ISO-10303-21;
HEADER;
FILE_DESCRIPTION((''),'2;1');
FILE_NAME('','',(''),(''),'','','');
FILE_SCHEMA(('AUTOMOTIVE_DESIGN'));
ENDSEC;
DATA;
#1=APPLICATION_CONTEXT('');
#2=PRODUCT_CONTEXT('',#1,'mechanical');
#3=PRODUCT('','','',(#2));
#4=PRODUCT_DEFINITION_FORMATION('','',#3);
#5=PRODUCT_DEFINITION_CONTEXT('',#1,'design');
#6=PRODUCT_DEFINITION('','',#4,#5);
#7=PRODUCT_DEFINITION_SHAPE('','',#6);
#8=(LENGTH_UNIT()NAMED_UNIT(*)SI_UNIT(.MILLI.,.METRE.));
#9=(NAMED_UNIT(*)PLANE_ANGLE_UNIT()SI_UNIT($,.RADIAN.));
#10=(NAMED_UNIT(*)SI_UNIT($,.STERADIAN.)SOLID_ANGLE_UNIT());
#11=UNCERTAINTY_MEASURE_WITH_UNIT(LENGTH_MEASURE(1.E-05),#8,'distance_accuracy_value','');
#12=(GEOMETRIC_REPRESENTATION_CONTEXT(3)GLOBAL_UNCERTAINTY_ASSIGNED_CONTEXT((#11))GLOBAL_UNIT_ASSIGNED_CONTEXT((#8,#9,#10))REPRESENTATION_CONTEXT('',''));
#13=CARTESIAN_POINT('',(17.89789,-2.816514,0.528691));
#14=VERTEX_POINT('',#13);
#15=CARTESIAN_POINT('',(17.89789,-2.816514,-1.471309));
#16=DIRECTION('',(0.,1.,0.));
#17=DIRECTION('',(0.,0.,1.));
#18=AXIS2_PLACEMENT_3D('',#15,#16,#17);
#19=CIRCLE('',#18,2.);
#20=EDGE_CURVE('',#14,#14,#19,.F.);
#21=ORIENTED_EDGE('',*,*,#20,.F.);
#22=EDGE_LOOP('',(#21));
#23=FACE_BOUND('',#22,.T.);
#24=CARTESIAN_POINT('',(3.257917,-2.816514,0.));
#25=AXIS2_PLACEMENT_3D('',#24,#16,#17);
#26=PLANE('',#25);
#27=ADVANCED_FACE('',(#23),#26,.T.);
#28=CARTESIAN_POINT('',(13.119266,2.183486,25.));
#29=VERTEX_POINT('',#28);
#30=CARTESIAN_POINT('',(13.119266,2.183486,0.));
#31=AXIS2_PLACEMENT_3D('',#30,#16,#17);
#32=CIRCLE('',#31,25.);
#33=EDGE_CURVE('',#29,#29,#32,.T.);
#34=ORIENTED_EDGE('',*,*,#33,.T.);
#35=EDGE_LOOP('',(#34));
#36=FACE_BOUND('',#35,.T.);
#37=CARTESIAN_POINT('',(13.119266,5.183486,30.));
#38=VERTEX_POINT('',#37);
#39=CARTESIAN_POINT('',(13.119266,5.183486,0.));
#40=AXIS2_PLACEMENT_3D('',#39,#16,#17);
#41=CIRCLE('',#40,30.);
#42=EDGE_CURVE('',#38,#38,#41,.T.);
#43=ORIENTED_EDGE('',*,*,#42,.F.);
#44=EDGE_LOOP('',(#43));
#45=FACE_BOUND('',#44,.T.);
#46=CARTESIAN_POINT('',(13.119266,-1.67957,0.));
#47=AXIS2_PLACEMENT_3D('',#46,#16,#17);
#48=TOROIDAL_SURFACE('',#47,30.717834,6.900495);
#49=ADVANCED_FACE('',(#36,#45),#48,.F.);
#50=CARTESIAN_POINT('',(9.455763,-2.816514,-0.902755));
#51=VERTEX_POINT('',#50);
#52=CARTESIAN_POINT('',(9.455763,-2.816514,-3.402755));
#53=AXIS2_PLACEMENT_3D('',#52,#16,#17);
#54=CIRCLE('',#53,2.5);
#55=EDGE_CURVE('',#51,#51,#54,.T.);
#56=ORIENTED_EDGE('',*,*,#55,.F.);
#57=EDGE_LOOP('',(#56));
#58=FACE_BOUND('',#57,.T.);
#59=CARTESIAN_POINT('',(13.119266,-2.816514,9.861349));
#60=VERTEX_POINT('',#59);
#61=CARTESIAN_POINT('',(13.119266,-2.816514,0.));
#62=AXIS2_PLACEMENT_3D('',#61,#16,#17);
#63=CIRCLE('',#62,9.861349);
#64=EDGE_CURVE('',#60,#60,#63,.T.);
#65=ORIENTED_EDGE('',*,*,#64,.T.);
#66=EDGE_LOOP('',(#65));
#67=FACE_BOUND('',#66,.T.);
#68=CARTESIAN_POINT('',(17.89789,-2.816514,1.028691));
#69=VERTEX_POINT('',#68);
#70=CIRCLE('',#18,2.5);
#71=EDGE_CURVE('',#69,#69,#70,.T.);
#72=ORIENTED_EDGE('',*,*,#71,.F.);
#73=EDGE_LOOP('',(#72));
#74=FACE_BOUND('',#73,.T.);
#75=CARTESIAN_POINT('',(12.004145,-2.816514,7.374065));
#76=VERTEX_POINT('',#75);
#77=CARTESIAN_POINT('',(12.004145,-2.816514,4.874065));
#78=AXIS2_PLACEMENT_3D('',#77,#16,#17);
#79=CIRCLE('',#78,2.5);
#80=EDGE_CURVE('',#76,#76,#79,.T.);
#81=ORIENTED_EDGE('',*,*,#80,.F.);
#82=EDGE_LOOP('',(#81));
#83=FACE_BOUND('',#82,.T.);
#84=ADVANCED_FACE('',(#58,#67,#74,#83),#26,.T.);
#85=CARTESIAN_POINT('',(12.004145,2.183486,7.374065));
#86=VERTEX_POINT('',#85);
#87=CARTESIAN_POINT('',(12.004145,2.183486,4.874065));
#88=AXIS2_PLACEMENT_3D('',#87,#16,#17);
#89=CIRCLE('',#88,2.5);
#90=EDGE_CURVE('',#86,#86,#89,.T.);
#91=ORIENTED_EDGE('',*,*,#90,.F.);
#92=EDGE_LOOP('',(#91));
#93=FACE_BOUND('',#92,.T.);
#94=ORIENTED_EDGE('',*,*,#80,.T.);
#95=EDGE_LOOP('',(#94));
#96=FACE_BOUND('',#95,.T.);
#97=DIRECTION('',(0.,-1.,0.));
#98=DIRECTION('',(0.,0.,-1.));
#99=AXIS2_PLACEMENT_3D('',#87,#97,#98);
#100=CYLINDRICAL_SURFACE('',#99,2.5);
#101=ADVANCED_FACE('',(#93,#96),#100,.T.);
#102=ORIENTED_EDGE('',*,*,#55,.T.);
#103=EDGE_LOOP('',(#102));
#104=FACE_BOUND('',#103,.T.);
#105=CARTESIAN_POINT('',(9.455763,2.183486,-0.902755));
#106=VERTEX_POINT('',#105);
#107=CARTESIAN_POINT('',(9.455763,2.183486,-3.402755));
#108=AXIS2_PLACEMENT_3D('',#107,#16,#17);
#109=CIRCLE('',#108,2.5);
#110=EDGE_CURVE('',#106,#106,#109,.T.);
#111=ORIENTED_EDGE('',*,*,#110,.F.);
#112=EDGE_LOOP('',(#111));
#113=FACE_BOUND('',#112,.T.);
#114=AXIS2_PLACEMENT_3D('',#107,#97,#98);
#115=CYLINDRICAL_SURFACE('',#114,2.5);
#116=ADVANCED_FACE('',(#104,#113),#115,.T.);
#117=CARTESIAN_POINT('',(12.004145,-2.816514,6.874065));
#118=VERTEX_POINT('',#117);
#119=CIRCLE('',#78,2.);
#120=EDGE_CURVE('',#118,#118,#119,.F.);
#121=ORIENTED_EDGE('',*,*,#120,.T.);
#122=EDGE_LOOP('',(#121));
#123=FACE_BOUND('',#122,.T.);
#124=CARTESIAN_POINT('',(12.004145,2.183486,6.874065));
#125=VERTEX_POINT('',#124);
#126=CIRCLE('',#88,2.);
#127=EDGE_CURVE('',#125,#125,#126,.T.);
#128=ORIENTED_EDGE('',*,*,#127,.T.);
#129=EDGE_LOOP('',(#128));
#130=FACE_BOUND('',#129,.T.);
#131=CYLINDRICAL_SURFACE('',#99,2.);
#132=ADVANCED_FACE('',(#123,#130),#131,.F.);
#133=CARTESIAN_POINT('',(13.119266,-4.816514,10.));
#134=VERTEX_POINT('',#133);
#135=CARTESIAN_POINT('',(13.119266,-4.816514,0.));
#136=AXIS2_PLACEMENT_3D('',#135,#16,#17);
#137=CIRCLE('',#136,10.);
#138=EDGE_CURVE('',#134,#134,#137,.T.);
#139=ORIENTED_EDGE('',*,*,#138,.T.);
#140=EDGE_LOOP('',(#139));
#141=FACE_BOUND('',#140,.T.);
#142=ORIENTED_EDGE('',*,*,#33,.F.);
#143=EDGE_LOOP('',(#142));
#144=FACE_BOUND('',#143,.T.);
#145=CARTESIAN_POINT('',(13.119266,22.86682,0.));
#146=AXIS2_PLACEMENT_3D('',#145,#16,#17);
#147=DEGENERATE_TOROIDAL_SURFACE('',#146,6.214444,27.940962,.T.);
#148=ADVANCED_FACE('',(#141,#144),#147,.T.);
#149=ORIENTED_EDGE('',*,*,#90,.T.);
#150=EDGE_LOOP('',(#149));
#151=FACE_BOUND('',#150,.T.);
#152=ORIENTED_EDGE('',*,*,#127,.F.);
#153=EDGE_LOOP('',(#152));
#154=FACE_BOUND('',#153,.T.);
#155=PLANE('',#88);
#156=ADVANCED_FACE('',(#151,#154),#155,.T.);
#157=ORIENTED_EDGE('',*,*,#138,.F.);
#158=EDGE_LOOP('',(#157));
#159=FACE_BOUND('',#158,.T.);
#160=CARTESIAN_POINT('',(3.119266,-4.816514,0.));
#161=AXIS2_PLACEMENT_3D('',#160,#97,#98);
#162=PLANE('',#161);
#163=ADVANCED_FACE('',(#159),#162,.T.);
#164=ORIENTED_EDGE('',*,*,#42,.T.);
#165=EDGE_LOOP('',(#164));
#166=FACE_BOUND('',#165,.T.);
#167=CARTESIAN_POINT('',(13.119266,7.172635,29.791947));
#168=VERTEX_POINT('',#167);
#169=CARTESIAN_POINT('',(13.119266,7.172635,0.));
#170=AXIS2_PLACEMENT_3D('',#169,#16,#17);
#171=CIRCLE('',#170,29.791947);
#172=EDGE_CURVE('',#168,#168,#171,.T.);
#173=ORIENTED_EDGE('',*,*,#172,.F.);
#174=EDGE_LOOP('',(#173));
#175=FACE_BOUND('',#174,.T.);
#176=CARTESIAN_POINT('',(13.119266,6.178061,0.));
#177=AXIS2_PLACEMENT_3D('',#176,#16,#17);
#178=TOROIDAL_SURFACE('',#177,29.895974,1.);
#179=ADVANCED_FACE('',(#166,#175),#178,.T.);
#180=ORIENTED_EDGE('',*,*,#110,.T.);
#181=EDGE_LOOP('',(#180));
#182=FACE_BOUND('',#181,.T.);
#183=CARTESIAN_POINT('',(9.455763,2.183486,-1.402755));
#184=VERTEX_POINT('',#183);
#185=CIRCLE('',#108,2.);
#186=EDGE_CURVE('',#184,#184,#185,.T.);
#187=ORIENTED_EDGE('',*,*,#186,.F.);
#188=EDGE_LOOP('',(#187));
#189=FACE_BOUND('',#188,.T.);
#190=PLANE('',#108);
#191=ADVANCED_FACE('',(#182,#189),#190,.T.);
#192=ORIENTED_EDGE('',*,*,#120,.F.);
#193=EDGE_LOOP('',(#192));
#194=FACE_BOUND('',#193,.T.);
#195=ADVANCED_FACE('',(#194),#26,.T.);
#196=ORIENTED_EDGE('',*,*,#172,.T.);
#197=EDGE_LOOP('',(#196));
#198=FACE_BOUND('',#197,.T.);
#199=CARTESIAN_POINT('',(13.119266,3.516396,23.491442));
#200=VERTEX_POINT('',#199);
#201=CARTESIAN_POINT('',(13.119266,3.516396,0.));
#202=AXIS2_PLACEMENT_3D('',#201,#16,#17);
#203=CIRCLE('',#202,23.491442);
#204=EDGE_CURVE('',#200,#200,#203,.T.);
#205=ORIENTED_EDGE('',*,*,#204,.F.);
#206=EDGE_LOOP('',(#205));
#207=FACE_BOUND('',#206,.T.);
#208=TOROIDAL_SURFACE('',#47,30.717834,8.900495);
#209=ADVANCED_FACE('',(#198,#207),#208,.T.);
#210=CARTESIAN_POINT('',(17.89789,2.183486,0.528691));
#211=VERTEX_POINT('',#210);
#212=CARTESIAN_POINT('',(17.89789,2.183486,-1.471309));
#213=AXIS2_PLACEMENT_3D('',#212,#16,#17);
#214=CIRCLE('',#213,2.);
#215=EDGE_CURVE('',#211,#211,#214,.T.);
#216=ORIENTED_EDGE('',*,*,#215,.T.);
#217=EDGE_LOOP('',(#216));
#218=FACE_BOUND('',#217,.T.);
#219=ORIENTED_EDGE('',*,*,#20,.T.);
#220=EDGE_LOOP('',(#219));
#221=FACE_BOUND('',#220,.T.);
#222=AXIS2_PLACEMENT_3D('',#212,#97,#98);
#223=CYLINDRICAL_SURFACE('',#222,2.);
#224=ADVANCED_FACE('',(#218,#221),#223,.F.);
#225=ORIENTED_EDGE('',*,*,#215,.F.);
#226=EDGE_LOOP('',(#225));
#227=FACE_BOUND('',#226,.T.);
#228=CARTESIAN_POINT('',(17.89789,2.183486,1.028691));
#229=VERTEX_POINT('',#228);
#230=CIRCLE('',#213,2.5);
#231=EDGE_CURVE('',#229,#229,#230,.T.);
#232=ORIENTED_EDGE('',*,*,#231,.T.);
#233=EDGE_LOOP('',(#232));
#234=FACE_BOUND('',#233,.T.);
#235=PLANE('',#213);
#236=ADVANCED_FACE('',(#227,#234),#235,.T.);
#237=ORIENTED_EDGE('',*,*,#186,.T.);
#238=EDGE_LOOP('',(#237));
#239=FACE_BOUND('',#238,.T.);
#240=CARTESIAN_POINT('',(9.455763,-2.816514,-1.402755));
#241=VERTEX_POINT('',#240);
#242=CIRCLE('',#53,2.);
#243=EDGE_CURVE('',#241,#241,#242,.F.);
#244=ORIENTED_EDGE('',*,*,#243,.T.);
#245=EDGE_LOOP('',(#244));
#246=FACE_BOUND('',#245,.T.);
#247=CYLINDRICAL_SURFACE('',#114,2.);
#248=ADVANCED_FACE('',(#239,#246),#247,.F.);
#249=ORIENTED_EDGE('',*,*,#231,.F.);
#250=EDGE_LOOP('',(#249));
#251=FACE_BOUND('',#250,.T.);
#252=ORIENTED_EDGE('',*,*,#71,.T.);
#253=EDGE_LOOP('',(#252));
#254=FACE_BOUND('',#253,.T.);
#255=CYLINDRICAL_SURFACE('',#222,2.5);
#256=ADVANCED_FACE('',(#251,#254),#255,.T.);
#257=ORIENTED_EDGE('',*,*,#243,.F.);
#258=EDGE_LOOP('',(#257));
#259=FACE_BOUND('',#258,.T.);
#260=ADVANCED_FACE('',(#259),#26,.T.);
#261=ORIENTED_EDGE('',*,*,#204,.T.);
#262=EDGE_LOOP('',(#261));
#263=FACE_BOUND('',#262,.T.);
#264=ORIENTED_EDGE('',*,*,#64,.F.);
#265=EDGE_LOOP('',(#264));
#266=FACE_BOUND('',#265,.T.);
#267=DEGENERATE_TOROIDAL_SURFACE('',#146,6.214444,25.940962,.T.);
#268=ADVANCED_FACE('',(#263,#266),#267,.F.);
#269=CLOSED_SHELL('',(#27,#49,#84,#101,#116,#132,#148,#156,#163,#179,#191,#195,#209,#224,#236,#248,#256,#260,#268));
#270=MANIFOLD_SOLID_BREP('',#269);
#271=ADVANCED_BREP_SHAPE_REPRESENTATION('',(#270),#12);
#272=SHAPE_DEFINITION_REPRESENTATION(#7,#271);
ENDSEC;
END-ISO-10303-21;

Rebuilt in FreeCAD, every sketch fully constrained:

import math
import FreeCAD as App
import Part
import Sketcher

V = App.Vector
Q = App.Units.Quantity

doc = App.newDocument("Part")
params = doc.addObject("Spreadsheet::Sheet", "Params")
for row, (alias, value) in enumerate([
    ("sketch1_radius", "1 mm"),
    ("sketch1_width", "10 mm"),
    ("sketch1_height", "2 mm"),
    ("revolution_angle", "360 deg"),
    ("sketch2_diameter", "5 mm"),
    ("sketch2_diameter2", "4 mm"),
    ("pad1_length", "5 mm"),
], start=1):
    params.set(f"A{row}", alias)
    params.set(f"B{row}", "=" + value)
    params.setAlias(f"B{row}", alias)

body = doc.addObject("PartDesign::Body", "Body")

sketch1 = body.newObject("Sketcher::SketchObject", "Sketch")
sketch1.AttachmentSupport = (doc.getObject("XY_Plane"), [""])
sketch1.MapMode = "FlatFace"
sketch1.addGeometry([
    Part.LineSegment(V(3.119266, -4.816514, 0), V(13.119266, -4.816514, 0)),
    Part.LineSegment(V(13.119266, -4.816514, 0), V(13.119266, -2.816514, 0)),
    Part.LineSegment(V(13.119266, -2.816514, 0), V(3.257917, -2.816514, 0)),
    Part.ArcOfCircle(Part.Circle(V(6.904822, 22.86682, 0), V(0, 0, 1), 25.940962), math.radians(-131.760025), math.radians(-98.081687)),
    Part.ArcOfCircle(Part.Circle(V(-17.598568, -1.67957, 0), V(0, 0, 1), 8.900495), math.radians(35.71713), math.radians(84.028921)),
    Part.ArcOfCircle(Part.Circle(V(-16.776707, 6.178061, 0), V(0, 0, 1), 1), math.radians(84.028921), math.radians(264.028921)),
    Part.ArcOfCircle(Part.Circle(V(-17.598568, -1.67957, 0), V(0, 0, 1), 6.900495), math.radians(34.043566), math.radians(84.028921)),
    Part.ArcOfCircle(Part.Circle(V(6.904822, 22.86682, 0), V(0, 0, 1), 27.940962), math.radians(-132.247174), math.radians(-97.786613)),
], False)
sketch1.addGeometry(Part.LineSegment(V(13.119266, 22.86682, 0), V(13.119266, -4.816514, 0)), True)
sketch1.addConstraint([
    Sketcher.Constraint("Coincident", 0, 2, 1, 1),
    Sketcher.Constraint("Coincident", 1, 2, 2, 1),
    Sketcher.Constraint("Coincident", 2, 2, 3, 2),
    Sketcher.Constraint("Coincident", 3, 1, 4, 1),
    Sketcher.Constraint("Tangent", 4, 2, 5, 1),
    Sketcher.Constraint("Tangent", 5, 2, 6, 2),
    Sketcher.Constraint("Coincident", 6, 1, 7, 1),
    Sketcher.Constraint("Coincident", 7, 2, 0, 1),
    Sketcher.Constraint("Horizontal", 0),
    Sketcher.Constraint("Vertical", 1),
    Sketcher.Constraint("Horizontal", 2),
    Sketcher.Constraint("Vertical", 8),
    Sketcher.Constraint("Coincident", 6, 3, 4, 3),
    Sketcher.Constraint("Coincident", 7, 3, 3, 3),
    Sketcher.Constraint("Coincident", 8, 2, 0, 2),
    Sketcher.Constraint("Horizontal", 7, 3, 8, 1),
    Sketcher.Constraint("Radius", 5, Q("1 mm")),
    Sketcher.Constraint("DistanceX", 0, 1, 0, 2, Q("10 mm")),
    Sketcher.Constraint("DistanceY", 1, 1, 1, 2, Q("2 mm")),
    Sketcher.Constraint("DistanceX", 5, 2, 6, 1, Q("5 mm")),
    Sketcher.Constraint("DistanceY", 6, 1, 5, 2, Q("3 mm")),
    Sketcher.Constraint("DistanceX", 6, 1, 7, 2, Q("15 mm")),
    Sketcher.Constraint("DistanceY", 7, 2, 6, 1, Q("7 mm")),
    Sketcher.Constraint("Radius", 3, Q("25.940962 mm")),
    Sketcher.Constraint("Radius", 4, Q("8.900495 mm")),
    Sketcher.Constraint("Radius", 7, Q("27.940962 mm")),
    Sketcher.Constraint("DistanceX", -1, 1, 3, 3, Q("6.904822 mm")),
    Sketcher.Constraint("DistanceY", -1, 1, 3, 3, Q("22.86682 mm")),
])
sketch1.setExpression("Constraints[16]", "Params.sketch1_radius")
sketch1.setExpression("Constraints[17]", "Params.sketch1_width")
sketch1.setExpression("Constraints[18]", "Params.sketch1_height")
revolution = body.newObject("PartDesign::Revolution", "Revolution")
revolution.Profile = sketch1
revolution.ReferenceAxis = (sketch1, ["Axis0"])
revolution.setExpression("Angle", "Params.revolution_angle")

sketch2 = body.newObject("Sketcher::SketchObject", "Sketch001")
sketch2.AttachmentSupport = (doc.getObject("XZ_Plane"), [""])
sketch2.MapMode = "FlatFace"
sketch2.AttachmentOffset = App.Placement(V(0, 0, 2.816514), App.Rotation())
sketch2.addGeometry([
    Part.Circle(V(9.455763, -3.402755, 0), V(0, 0, 1), 2.5),
    Part.Circle(V(9.455763, -3.402755, 0), V(0, 0, 1), 2),
    Part.Circle(V(17.89789, -1.471309, 0), V(0, 0, 1), 2.5),
    Part.Circle(V(17.89789, -1.471309, 0), V(0, 0, 1), 2),
    Part.Circle(V(12.004145, 4.874065, 0), V(0, 0, 1), 2.5),
    Part.Circle(V(12.004145, 4.874065, 0), V(0, 0, 1), 2),
], False)
sketch2.addConstraint([
    Sketcher.Constraint("Coincident", 1, 3, 0, 3),
    Sketcher.Constraint("Coincident", 3, 3, 2, 3),
    Sketcher.Constraint("Coincident", 5, 3, 4, 3),
    Sketcher.Constraint("Equal", 0, 2),
    Sketcher.Constraint("Equal", 1, 3),
    Sketcher.Constraint("Equal", 2, 4),
    Sketcher.Constraint("Equal", 3, 5),
    Sketcher.Constraint("Diameter", 0, Q("5 mm")),
    Sketcher.Constraint("Diameter", 1, Q("4 mm")),
    Sketcher.Constraint("DistanceX", -1, 1, 2, 3, Q("17.89789 mm")),
    Sketcher.Constraint("DistanceY", 2, 3, -1, 1, Q("1.471309 mm")),
    Sketcher.Constraint("DistanceY", 0, 3, 4, 3, Q("8.27682 mm")),
    Sketcher.Constraint("DistanceX", -1, 1, 0, 3, Q("9.455763 mm")),
    Sketcher.Constraint("DistanceY", 0, 3, -1, 1, Q("3.402755 mm")),
    Sketcher.Constraint("DistanceX", -1, 1, 4, 3, Q("12.004145 mm")),
])
sketch2.setExpression("Constraints[7]", "Params.sketch2_diameter")
sketch2.setExpression("Constraints[8]", "Params.sketch2_diameter2")
pad1 = body.newObject("PartDesign::Pad", "Pad")
pad1.Profile = sketch2
pad1.setExpression("Length", "Params.pad1_length")
pad1.Reversed = True

doc.recompute()
